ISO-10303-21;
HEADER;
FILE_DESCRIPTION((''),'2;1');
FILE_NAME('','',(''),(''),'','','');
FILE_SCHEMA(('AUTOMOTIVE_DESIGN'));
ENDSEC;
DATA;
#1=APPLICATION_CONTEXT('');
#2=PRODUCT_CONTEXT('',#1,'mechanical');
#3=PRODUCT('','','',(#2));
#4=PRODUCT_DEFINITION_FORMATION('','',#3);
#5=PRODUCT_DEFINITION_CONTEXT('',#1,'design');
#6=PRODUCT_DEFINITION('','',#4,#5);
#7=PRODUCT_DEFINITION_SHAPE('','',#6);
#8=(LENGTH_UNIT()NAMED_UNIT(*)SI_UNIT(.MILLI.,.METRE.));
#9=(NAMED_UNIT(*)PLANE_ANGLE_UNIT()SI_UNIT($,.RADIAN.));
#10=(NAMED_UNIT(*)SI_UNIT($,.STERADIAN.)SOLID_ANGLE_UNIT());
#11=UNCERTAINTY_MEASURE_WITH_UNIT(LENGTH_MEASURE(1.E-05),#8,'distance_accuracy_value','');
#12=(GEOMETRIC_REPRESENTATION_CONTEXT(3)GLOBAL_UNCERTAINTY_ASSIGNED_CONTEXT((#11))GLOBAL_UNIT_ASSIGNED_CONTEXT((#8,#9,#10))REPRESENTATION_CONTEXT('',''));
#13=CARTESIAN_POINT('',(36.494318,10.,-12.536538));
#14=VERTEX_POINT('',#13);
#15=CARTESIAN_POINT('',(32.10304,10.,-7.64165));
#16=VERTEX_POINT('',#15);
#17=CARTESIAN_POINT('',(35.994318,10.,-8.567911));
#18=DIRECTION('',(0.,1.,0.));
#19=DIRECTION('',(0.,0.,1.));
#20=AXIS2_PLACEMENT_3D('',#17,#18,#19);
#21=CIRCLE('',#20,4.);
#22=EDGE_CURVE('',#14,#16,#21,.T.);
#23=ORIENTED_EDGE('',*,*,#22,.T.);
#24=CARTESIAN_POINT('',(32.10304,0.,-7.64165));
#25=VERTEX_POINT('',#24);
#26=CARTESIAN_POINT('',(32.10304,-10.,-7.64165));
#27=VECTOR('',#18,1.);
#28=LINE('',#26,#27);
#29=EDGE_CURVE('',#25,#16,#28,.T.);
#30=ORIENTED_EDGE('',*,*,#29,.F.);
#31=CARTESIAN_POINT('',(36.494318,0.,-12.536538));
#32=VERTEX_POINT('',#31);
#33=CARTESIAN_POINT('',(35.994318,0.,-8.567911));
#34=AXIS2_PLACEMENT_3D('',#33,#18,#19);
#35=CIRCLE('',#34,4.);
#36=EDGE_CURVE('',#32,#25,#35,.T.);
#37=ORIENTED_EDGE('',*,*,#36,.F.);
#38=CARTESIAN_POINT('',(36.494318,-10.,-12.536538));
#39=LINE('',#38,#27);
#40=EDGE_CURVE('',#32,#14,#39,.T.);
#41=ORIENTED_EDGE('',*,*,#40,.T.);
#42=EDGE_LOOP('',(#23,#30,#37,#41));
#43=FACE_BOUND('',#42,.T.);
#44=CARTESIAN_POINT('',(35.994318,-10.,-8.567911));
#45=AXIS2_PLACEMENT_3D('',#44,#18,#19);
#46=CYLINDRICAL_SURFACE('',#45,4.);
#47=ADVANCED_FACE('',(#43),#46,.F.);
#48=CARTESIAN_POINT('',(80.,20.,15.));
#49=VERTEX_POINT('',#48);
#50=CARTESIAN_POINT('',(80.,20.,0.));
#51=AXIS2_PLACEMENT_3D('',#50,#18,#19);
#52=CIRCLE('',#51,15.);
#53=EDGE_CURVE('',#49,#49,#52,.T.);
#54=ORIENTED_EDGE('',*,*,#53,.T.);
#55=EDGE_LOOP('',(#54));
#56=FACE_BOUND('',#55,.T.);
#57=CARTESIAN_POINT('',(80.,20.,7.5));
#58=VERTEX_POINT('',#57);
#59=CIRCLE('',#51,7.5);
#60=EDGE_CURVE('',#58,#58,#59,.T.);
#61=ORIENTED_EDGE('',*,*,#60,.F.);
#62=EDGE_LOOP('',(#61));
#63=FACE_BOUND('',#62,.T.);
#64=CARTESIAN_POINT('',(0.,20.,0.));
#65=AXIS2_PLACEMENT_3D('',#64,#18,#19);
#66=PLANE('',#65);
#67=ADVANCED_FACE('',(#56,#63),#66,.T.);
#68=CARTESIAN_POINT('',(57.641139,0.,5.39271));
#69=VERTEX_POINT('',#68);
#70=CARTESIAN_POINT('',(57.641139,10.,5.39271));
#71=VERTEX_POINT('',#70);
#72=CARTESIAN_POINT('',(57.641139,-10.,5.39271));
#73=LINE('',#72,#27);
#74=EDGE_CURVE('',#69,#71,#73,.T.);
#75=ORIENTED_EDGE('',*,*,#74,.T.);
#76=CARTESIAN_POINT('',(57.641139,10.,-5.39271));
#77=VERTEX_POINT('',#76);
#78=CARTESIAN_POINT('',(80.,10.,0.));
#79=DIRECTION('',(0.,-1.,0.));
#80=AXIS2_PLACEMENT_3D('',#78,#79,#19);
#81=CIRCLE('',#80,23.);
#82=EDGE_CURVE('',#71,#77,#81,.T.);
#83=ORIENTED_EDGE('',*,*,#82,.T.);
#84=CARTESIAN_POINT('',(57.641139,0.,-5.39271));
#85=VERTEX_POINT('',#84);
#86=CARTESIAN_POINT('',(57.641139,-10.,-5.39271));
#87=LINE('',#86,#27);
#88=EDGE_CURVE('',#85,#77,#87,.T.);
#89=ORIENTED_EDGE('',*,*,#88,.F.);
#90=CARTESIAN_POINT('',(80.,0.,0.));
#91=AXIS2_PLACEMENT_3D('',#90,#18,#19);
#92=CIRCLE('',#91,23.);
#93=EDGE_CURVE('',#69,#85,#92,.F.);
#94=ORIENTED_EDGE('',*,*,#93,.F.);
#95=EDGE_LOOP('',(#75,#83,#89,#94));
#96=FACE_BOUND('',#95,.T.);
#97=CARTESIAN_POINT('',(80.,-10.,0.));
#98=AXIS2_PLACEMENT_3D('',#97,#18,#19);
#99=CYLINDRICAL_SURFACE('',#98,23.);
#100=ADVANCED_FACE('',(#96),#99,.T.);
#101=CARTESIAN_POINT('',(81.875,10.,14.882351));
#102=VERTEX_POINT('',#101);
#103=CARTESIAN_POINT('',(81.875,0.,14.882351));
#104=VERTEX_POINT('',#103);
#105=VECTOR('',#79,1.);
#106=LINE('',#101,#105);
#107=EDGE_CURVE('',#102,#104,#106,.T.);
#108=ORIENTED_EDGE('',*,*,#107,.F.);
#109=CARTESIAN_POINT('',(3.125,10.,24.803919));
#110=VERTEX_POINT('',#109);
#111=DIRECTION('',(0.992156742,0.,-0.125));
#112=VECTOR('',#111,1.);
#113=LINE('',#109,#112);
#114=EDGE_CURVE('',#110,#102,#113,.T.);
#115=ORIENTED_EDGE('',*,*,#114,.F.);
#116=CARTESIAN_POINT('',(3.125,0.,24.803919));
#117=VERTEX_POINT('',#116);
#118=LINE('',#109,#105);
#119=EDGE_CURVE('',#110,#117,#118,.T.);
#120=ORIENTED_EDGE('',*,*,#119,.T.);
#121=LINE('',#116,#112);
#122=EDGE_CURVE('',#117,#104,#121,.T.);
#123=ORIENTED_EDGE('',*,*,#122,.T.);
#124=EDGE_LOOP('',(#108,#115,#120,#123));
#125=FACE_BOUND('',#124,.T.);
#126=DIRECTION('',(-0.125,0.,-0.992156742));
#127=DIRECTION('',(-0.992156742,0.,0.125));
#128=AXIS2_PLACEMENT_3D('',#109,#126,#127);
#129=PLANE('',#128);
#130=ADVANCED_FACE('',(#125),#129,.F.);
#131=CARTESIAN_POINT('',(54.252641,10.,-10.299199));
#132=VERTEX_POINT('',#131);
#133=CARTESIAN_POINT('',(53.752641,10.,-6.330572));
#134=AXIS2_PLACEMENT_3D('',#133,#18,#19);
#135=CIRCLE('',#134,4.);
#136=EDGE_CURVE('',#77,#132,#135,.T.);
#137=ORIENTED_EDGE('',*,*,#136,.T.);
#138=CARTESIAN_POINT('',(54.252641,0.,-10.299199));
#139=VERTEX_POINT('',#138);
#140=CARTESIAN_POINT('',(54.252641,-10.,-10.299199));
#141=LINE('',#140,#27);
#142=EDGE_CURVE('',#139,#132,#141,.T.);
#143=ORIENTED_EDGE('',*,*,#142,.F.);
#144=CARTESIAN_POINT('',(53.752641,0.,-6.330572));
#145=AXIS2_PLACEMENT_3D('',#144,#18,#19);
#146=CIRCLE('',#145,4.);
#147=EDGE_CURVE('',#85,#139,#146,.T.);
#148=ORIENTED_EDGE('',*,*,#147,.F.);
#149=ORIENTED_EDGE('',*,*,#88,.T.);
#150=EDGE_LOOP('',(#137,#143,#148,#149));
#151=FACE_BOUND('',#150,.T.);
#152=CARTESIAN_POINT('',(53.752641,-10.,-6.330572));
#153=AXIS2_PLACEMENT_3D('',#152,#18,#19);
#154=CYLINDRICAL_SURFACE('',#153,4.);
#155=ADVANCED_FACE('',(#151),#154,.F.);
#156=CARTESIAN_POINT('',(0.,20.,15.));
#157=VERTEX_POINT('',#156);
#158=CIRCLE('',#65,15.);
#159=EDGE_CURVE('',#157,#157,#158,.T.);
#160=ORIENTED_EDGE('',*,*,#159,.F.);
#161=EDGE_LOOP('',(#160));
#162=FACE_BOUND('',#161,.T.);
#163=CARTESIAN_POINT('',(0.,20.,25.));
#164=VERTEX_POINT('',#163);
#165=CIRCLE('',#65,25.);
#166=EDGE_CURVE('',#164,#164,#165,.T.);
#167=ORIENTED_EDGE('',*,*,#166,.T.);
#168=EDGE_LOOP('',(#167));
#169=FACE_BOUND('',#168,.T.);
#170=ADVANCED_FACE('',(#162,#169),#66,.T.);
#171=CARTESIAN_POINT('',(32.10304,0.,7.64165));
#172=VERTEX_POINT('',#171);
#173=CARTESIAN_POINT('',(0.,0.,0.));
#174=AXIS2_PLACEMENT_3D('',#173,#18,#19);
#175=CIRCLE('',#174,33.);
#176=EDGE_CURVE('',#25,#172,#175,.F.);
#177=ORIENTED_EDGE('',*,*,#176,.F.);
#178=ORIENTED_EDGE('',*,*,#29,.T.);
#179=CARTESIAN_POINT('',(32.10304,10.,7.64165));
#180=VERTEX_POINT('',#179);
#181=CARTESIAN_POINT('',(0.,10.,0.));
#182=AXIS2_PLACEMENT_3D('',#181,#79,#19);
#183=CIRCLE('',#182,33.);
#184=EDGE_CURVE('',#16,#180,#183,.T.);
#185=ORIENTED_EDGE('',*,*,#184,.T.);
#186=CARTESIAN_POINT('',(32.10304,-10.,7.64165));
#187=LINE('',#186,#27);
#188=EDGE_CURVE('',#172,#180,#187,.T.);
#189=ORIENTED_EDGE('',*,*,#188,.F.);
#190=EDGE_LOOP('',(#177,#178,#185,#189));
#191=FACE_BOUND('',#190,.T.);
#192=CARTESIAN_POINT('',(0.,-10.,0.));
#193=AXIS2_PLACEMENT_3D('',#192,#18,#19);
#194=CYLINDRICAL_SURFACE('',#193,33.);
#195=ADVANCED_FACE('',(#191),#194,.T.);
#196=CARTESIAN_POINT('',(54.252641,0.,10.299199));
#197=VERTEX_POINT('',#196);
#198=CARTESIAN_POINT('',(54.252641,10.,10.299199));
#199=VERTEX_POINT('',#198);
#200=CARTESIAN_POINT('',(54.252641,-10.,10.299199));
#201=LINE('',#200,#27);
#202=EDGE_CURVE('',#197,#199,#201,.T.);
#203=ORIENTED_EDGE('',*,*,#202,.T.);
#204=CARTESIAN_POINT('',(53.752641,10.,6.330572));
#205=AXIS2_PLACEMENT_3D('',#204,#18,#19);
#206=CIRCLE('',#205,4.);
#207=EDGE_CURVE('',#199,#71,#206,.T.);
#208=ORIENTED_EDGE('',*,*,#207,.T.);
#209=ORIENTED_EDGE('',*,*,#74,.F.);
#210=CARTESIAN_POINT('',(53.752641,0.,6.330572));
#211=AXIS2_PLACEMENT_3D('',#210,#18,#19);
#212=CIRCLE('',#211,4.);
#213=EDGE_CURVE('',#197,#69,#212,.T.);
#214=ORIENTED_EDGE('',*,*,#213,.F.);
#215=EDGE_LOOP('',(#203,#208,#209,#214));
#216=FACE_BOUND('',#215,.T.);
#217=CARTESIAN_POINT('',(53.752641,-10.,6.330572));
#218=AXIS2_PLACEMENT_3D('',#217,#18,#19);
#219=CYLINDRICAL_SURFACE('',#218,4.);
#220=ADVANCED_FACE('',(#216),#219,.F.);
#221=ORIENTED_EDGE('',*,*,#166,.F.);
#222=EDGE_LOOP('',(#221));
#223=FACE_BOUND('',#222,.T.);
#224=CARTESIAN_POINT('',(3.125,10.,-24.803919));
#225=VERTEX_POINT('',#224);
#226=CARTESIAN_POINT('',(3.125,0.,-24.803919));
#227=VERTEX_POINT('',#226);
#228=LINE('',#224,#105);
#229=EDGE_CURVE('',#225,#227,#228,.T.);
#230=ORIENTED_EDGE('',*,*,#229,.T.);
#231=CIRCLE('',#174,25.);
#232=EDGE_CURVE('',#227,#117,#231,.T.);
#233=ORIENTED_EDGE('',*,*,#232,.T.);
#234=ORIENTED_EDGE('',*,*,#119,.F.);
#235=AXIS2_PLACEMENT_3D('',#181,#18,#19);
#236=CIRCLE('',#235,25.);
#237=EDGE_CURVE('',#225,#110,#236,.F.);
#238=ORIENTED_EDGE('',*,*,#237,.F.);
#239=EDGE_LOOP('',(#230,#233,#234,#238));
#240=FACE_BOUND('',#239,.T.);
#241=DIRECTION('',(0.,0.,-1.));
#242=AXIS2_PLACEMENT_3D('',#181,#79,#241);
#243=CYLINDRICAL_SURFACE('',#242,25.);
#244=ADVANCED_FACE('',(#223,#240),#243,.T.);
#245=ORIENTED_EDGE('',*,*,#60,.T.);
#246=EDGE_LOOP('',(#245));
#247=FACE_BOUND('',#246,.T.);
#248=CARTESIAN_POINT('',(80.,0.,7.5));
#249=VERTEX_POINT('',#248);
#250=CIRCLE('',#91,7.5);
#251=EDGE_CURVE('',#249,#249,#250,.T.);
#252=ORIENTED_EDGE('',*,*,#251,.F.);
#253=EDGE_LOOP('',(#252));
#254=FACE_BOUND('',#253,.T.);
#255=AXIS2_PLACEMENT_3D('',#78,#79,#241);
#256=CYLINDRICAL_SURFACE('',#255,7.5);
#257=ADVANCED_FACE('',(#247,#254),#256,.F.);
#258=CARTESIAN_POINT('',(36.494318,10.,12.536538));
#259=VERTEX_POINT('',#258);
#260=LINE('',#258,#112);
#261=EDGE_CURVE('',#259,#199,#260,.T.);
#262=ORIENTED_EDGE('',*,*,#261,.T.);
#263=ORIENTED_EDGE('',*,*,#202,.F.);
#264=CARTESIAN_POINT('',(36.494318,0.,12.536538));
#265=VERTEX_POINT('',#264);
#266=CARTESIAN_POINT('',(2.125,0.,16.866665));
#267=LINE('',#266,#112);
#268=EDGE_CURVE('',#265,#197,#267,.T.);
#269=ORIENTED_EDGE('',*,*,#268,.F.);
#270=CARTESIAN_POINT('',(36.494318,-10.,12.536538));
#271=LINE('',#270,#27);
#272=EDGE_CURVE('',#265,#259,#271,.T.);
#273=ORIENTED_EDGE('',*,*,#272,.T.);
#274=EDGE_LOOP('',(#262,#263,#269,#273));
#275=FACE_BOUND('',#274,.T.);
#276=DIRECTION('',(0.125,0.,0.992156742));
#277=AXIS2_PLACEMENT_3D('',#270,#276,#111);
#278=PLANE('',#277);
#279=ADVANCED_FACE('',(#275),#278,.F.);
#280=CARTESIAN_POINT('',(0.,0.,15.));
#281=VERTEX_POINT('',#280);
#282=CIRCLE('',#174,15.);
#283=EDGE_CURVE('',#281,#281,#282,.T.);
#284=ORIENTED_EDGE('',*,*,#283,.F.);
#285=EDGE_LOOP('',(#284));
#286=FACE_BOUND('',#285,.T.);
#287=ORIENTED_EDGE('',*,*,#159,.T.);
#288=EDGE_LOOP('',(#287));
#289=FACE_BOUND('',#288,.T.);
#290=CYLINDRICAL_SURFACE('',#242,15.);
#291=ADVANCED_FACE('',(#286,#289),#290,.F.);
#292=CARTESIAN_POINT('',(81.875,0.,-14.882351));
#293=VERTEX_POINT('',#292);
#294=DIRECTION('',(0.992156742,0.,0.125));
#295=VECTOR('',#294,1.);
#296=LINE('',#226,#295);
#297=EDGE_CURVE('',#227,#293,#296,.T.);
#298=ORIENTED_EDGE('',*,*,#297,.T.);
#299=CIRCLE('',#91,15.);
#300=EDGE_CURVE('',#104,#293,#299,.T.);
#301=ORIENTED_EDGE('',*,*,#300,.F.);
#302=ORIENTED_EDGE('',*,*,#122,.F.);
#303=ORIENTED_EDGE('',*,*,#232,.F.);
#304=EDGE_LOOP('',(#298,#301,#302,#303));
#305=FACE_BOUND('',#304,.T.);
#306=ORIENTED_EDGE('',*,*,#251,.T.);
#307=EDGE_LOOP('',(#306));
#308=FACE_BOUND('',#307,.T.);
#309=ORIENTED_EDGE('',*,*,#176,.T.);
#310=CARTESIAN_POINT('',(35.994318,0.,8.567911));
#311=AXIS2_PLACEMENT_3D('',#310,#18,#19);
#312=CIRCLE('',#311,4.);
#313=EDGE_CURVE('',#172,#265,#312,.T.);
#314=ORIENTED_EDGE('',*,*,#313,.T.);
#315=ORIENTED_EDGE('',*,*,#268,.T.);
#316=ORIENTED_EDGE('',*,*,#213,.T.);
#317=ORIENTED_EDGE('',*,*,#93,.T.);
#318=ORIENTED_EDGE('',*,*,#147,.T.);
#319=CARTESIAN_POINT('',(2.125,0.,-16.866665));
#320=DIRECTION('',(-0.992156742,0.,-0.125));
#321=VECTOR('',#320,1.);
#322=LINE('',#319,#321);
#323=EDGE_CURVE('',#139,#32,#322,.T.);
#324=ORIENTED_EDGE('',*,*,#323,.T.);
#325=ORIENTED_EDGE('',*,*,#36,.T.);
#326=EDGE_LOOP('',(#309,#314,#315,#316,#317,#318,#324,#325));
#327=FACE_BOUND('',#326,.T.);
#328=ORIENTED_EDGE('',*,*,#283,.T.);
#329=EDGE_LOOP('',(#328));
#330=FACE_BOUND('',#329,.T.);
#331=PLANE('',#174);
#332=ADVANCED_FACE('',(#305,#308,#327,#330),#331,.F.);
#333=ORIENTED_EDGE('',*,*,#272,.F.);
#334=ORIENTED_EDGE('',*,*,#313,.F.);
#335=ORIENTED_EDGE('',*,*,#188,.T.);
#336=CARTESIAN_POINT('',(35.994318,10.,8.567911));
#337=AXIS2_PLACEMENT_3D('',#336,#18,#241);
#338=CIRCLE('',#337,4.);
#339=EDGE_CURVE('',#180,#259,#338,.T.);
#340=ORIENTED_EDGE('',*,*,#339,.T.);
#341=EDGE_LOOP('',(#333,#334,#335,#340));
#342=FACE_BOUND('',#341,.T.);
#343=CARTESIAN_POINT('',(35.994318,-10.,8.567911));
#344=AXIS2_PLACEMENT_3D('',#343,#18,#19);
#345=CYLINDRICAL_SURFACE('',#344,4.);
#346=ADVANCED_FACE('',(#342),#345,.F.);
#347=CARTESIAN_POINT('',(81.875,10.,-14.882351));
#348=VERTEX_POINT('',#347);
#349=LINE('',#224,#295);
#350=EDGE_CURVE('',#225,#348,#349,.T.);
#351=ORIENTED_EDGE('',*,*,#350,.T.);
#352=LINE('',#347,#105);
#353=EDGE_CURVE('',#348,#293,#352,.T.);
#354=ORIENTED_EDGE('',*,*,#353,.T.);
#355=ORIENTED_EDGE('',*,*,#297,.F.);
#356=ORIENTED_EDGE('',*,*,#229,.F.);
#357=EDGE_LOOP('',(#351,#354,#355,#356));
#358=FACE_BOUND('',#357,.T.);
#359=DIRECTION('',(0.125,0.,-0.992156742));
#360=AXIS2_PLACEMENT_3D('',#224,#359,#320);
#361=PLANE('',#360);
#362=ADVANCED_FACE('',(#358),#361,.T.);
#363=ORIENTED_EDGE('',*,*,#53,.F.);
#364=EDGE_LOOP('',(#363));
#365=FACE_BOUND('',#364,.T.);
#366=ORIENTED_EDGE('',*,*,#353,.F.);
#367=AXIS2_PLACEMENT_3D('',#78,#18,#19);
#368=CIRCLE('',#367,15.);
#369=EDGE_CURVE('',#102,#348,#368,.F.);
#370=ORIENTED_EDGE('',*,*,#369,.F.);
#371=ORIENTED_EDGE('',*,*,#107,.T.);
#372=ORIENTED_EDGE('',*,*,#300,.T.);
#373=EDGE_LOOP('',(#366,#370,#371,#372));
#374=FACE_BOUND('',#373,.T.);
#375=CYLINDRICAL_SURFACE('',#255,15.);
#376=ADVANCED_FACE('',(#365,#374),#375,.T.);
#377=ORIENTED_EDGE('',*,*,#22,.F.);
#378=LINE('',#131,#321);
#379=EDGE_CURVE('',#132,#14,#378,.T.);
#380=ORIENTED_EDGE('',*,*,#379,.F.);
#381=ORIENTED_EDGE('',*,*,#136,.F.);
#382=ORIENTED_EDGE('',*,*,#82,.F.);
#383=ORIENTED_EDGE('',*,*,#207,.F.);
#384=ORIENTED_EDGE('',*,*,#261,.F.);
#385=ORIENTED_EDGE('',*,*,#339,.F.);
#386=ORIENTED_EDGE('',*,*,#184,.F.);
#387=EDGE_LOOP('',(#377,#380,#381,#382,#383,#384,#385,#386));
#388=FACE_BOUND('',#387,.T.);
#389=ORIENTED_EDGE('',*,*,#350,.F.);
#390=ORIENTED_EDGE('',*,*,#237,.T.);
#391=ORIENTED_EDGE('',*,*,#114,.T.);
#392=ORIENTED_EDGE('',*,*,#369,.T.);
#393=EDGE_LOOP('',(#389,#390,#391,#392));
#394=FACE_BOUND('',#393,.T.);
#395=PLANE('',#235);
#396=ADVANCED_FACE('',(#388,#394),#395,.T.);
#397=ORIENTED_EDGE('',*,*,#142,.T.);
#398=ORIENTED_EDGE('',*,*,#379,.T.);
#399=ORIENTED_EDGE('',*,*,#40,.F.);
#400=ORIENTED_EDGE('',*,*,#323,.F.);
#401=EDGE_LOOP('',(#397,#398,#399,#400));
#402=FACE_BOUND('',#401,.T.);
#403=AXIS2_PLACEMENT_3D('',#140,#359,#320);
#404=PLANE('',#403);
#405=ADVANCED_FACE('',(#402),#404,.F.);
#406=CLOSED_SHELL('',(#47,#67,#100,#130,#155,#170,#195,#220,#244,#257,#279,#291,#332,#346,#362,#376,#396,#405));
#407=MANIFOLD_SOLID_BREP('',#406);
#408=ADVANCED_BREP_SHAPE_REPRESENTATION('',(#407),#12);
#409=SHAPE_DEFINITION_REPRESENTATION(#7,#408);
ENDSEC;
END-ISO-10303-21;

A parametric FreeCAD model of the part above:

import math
import FreeCAD as App
import Part
import Sketcher

V = App.Vector
Q = App.Units.Quantity

doc = App.newDocument("Part")
body = doc.addObject("PartDesign::Body", "Body")

sketch1 = body.newObject("Sketcher::SketchObject", "Sketch")
sketch1.AttachmentSupport = (doc.getObject("XZ_Plane"), [""])
sketch1.MapMode = "FlatFace"
sketch1.addGeometry(Part.ArcOfCircle(Part.Circle(V(0, 0, 0), V(0, 0, 1), 25), math.radians(83), math.radians(277)), False)
sketch1.addGeometry(Part.LineSegment(V(3, 25, 0), V(82, 15, 0)), False)
sketch1.addGeometry(Part.ArcOfCircle(Part.Circle(V(80, 0, 0), V(0, 0, 1), 15), math.radians(-83), math.radians(83)), False)
sketch1.addGeometry(Part.LineSegment(V(82, -15, 0), V(3, -25, 0)), False)
sketch1.addGeometry(Part.Circle(V(0, 0, 0), V(0, 0, 1), 15), False)
sketch1.addGeometry(Part.Circle(V(80, 0, 0), V(0, 0, 1), 8), False)
sketch1.addConstraint(Sketcher.Constraint("Tangent", 0, 1, 1, 1))
sketch1.addConstraint(Sketcher.Constraint("Tangent", 1, 2, 2, 2))
sketch1.addConstraint(Sketcher.Constraint("Tangent", 2, 1, 3, 1))
sketch1.addConstraint(Sketcher.Constraint("Tangent", 3, 2, 0, 2))
sketch1.addConstraint(Sketcher.Constraint("Coincident", 0, 3, -1, 1))
sketch1.addConstraint(Sketcher.Constraint("Coincident", 4, 3, -1, 1))
sketch1.addConstraint(Sketcher.Constraint("Coincident", 5, 3, 2, 3))
sketch1.addConstraint(Sketcher.Constraint("Equal", 2, 4))
sketch1.addConstraint(Sketcher.Constraint("PointOnObject", 2, 3, -1))
sketch1.addConstraint(Sketcher.Constraint("Diameter", 4, Q("30 mm")))
sketch1.addConstraint(Sketcher.Constraint("Diameter", 5, Q("15 mm")))
sketch1.addConstraint(Sketcher.Constraint("Radius", 0, Q("25 mm")))
sketch1.addConstraint(Sketcher.Constraint("DistanceX", -1, 1, 2, 3, Q("80 mm")))
pad1 = body.newObject("PartDesign::Pad", "Pad")
pad1.Profile = sketch1
pad1.Length = 10
pad1.Reversed = True

sketch2 = body.newObject("Sketcher::SketchObject", "Sketch001")
sketch2.AttachmentSupport = (doc.getObject("XZ_Plane"), [""])
sketch2.MapMode = "FlatFace"
sketch2.addGeometry(Part.Circle(V(0, 0, 0), V(0, 0, 1), 25), False)
sketch2.addGeometry(Part.Circle(V(0, 0, 0), V(0, 0, 1), 15), False)
sketch2.addGeometry(Part.Circle(V(80, 0, 0), V(0, 0, 1), 15), False)
sketch2.addGeometry(Part.Circle(V(80, 0, 0), V(0, 0, 1), 8), False)
sketch2.addConstraint(Sketcher.Constraint("Coincident", 0, 3, -1, 1))
sketch2.addConstraint(Sketcher.Constraint("Coincident", 1, 3, -1, 1))
sketch2.addConstraint(Sketcher.Constraint("Coincident", 3, 3, 2, 3))
sketch2.addConstraint(Sketcher.Constraint("Equal", 1, 2))
sketch2.addConstraint(Sketcher.Constraint("PointOnObject", 2, 3, -1))
sketch2.addConstraint(Sketcher.Constraint("Diameter", 0, Q("50 mm")))
sketch2.addConstraint(Sketcher.Constraint("Diameter", 1, Q("30 mm")))
sketch2.addConstraint(Sketcher.Constraint("Diameter", 3, Q("15 mm")))
sketch2.addConstraint(Sketcher.Constraint("DistanceX", -1, 1, 2, 3, Q("80 mm")))
pad2 = body.newObject("PartDesign::Pad", "Pad001")
pad2.Profile = sketch2
pad2.Length = 20
pad2.Reversed = True

sketch3 = body.newObject("Sketcher::SketchObject", "Sketch002")
sketch3.AttachmentSupport = (doc.getObject("XZ_Plane"), [""])
sketch3.MapMode = "FlatFace"
sketch3.AttachmentOffset = App.Placement(V(0, 0, -10), App.Rotation())
sketch3.addGeometry(Part.LineSegment(V(36.5, 12.5, 0), V(54.3, 10.3, 0)), False)
sketch3.addGeometry(Part.ArcOfCircle(Part.Circle(V(53.8, 6.3, 0), V(0, 0, 1), 4), math.radians(-14), math.radians(83)), False)
sketch3.addGeometry(Part.ArcOfCircle(Part.Circle(V(80, 0, 0), V(0, 0, 1), 23), math.radians(166), math.radians(194)), False)
sketch3.addGeometry(Part.ArcOfCircle(Part.Circle(V(53.8, -6.3, 0), V(0, 0, 1), 4), math.radians(-83), math.radians(14)), False)
sketch3.addGeometry(Part.LineSegment(V(54.3, -10.3, 0), V(36.5, -12.5, 0)), False)
sketch3.addGeometry(Part.ArcOfCircle(Part.Circle(V(36, -8.6, 0), V(0, 0, 1), 4), math.radians(167), math.radians(277)), False)
sketch3.addGeometry(Part.ArcOfCircle(Part.Circle(V(0, 0, 0), V(0, 0, 1), 33), math.radians(-13), math.radians(13)), False)
sketch3.addGeometry(Part.ArcOfCircle(Part.Circle(V(36, 8.6, 0), V(0, 0, 1), 4), math.radians(83), math.radians(193)), False)
sketch3.addConstraint(Sketcher.Constraint("Tangent", 0, 2, 1, 2))
sketch3.addConstraint(Sketcher.Constraint("Tangent", 1, 1, 2, 1))
sketch3.addConstraint(Sketcher.Constraint("Tangent", 2, 2, 3, 2))
sketch3.addConstraint(Sketcher.Constraint("Tangent", 3, 1, 4, 1))
sketch3.addConstraint(Sketcher.Constraint("Tangent", 4, 2, 5, 2))
sketch3.addConstraint(Sketcher.Constraint("Tangent", 5, 1, 6, 1))
sketch3.addConstraint(Sketcher.Constraint("Tangent", 6, 2, 7, 2))
sketch3.addConstraint(Sketcher.Constraint("Tangent", 7, 1, 0, 1))
sketch3.addConstraint(Sketcher.Constraint("Coincident", 6, 3, -1, 1))
sketch3.addConstraint(Sketcher.Constraint("Equal", 1, 3))
sketch3.addConstraint(Sketcher.Constraint("Equal", 3, 5))
sketch3.addConstraint(Sketcher.Constraint("Equal", 5, 7))
sketch3.addConstraint(Sketcher.Constraint("Symmetric", 1, 3, 3, 3, -1))
sketch3.addConstraint(Sketcher.Constraint("Vertical", 5, 3, 7, 3))
sketch3.addConstraint(Sketcher.Constraint("Radius", 1, Q("4 mm")))
sketch3.addConstraint(Sketcher.Constraint("Radius", 2, Q("23 mm")))
sketch3.addConstraint(Sketcher.Constraint("Radius", 6, Q("33 mm")))
sketch3.addConstraint(Sketcher.Constraint("DistanceX", -1, 1, 2, 3, Q("80 mm")))
sketch3.addConstraint(Sketcher.Constraint("DistanceX", 1, 3, 0, 2, Q("0.5 mm")))
sketch3.addConstraint(Sketcher.Constraint("DistanceY", -1, 1, 0, 2, Q("10.299199 mm")))
pocket1 = body.newObject("PartDesign::Pocket", "Pocket")
pocket1.Profile = sketch3
pocket1.Length = 20
pocket1.Reversed = True

doc.recompute()
